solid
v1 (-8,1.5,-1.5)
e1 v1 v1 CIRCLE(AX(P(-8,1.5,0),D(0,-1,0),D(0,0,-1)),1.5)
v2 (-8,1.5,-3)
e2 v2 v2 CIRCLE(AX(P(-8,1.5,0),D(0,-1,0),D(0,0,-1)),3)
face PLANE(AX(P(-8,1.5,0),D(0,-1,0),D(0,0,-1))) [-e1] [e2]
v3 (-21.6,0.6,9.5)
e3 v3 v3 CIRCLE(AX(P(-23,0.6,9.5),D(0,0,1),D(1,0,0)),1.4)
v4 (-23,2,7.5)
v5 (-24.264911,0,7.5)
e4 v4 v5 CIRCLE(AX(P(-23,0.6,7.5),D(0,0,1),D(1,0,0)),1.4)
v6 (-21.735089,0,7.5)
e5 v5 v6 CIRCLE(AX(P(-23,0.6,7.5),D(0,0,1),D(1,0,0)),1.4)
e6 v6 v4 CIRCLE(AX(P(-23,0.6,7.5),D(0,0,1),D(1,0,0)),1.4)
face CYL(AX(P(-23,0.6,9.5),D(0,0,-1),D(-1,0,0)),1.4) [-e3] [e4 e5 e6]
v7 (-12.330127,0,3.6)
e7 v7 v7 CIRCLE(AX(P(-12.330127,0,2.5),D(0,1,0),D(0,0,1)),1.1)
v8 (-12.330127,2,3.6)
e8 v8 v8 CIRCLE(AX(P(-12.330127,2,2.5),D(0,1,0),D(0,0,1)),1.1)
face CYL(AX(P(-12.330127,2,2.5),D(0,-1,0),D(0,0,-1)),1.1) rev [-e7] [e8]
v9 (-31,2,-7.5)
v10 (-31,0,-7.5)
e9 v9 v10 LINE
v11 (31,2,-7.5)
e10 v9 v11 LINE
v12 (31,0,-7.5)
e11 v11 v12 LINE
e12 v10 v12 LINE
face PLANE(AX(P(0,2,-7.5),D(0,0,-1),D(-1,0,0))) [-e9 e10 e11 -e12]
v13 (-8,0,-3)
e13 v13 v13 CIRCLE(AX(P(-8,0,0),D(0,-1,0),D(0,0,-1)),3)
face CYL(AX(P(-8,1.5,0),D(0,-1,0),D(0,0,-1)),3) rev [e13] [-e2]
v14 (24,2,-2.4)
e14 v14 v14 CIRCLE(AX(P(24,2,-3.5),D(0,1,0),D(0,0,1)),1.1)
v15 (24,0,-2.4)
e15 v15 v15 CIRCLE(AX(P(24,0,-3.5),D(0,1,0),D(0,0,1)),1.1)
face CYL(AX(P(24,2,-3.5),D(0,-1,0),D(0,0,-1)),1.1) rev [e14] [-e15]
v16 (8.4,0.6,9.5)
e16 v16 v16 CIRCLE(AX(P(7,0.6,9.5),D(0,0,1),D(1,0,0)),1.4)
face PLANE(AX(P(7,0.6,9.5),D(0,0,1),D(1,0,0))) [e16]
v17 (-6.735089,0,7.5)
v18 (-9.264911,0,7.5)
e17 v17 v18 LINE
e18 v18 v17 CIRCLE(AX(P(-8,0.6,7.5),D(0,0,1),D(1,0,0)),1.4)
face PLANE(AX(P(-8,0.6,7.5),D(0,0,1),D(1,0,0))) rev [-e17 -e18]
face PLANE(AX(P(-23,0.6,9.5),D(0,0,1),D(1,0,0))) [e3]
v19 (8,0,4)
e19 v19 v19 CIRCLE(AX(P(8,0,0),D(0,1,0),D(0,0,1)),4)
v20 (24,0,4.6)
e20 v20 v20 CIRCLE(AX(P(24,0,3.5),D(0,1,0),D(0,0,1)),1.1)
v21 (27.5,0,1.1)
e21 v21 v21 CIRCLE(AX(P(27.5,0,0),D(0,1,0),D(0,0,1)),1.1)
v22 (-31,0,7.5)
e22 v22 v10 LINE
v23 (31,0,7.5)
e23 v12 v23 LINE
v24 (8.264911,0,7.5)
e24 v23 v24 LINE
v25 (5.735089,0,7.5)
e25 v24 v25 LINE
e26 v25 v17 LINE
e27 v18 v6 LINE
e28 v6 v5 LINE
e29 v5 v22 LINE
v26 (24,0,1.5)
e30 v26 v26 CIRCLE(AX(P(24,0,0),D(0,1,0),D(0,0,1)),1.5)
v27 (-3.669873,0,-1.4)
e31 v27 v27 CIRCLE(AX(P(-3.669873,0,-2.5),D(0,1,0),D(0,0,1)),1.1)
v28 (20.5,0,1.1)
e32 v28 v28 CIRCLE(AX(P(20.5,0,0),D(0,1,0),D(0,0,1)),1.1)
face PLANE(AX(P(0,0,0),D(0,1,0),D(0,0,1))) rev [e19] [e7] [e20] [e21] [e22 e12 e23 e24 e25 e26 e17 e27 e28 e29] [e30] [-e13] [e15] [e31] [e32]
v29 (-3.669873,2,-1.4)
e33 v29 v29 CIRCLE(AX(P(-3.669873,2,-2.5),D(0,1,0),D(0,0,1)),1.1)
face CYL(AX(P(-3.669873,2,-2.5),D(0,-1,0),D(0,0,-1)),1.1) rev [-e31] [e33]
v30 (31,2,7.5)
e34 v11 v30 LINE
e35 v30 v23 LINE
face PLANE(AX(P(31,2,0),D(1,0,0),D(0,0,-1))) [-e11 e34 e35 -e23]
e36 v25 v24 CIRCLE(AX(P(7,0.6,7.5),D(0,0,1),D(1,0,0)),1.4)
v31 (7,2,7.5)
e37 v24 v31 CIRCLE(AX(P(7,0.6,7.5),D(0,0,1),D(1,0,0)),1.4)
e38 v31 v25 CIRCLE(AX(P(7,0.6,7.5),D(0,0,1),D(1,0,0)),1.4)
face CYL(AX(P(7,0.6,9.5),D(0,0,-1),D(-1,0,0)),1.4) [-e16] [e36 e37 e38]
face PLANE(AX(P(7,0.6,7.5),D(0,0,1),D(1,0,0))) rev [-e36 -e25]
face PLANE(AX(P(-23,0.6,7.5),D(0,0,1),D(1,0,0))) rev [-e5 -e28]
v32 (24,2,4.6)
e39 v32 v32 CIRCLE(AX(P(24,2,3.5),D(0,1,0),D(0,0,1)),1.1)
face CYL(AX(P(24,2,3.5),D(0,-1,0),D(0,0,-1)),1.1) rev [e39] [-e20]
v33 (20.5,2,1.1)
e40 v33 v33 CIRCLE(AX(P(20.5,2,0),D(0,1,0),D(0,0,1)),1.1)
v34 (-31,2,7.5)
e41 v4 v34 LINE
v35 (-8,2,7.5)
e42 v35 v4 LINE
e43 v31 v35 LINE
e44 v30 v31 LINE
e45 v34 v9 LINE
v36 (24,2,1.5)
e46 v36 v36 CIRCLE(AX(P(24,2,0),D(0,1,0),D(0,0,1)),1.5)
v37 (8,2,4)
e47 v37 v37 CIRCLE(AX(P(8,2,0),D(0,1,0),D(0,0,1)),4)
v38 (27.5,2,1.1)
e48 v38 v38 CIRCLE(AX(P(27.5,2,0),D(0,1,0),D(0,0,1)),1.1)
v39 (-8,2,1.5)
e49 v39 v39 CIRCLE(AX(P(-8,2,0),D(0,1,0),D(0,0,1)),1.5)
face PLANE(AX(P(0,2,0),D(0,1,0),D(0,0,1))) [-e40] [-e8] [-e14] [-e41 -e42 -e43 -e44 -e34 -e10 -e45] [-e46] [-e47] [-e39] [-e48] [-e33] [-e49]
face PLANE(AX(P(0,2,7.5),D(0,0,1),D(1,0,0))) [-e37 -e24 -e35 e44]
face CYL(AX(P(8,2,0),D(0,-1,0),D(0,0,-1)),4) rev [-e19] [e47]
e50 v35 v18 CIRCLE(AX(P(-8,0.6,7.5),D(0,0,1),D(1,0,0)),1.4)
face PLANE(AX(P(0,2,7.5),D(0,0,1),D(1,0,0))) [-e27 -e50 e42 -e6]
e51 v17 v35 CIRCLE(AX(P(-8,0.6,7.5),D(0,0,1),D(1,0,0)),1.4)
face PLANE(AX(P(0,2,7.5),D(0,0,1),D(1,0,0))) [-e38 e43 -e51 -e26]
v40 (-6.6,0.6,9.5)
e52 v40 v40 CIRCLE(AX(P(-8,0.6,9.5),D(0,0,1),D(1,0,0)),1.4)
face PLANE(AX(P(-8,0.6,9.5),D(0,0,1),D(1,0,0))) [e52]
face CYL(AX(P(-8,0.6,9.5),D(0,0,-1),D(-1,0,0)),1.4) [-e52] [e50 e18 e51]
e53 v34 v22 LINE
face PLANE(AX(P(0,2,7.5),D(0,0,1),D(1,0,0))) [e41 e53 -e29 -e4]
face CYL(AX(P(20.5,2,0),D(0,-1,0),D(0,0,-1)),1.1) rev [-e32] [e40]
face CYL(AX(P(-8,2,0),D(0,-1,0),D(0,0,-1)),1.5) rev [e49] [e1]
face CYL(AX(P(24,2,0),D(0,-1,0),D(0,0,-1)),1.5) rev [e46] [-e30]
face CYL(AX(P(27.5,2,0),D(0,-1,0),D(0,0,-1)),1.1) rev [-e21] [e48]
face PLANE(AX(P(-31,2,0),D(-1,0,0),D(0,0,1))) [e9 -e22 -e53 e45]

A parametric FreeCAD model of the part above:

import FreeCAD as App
import Part
import Sketcher

V = App.Vector

doc = App.newDocument("Part")
body = doc.addObject("PartDesign::Body", "Body")

# Sketch on XZ plane
sketch1 = body.newObject("Sketcher::SketchObject", "Sketch")
sketch1.AttachmentSupport = (doc.getObject("XZ_Plane"), [""])
sketch1.MapMode = "FlatFace"
sketch1.addGeometry([
    Part.LineSegment(V(-31, -7.5, 0), V(-31, 7.5, 0)),  # 0
    Part.LineSegment(V(-31, 7.5, 0), V(31, 7.5, 0)),  # 1
    Part.LineSegment(V(31, 7.5, 0), V(31, -7.5, 0)),  # 2
    Part.LineSegment(V(31, -7.5, 0), V(-31, -7.5, 0)),  # 3
    Part.Circle(V(-12.3, 2.5, 0), V(0, 0, 1), 1.1),  # 4
    Part.Circle(V(24, 3.5, 0), V(0, 0, 1), 1.1),  # 5
    Part.Circle(V(-8, 0, 0), V(0, 0, 1), 1.5),  # 6
    Part.Circle(V(-3.7, -2.5, 0), V(0, 0, 1), 1.1),  # 7
    Part.Circle(V(8, 0, 0), V(0, 0, 1), 4),  # 8
    Part.Circle(V(20.5, 0, 0), V(0, 0, 1), 1.1),  # 9
    Part.Circle(V(24, 0, 0), V(0, 0, 1), 1.5),  # 10
    Part.Circle(V(27.5, 0, 0), V(0, 0, 1), 1.1),  # 11
    Part.Circle(V(24, -3.5, 0), V(0, 0, 1), 1.1),  # 12
], False)
sketch1.addConstraint([
    Sketcher.Constraint("Coincident", 0, 2, 1, 1),
    Sketcher.Constraint("Coincident", 1, 2, 2, 1),
    Sketcher.Constraint("Coincident", 2, 2, 3, 1),
    Sketcher.Constraint("Coincident", 3, 2, 0, 1),
    Sketcher.Constraint("Vertical", 0),
    Sketcher.Constraint("Horizontal", 1),
    Sketcher.Constraint("Vertical", 2),
    Sketcher.Constraint("Horizontal", 3),
    Sketcher.Constraint("Equal", 4, 5),
    Sketcher.Constraint("Equal", 5, 7),
    Sketcher.Constraint("Equal", 7, 9),
    Sketcher.Constraint("Equal", 6, 10),
    Sketcher.Constraint("Equal", 9, 11),
    Sketcher.Constraint("Equal", 11, 12),
    Sketcher.Constraint("Symmetric", 6, 3, 8, 3, -1, 1),
    Sketcher.Constraint("Symmetric", 0, 2, 2, 2, -1, 1),
    Sketcher.Constraint("Symmetric", 5, 3, 12, 3, -1),
    Sketcher.Constraint("PointOnObject", 6, 3, -1),
    Sketcher.Constraint("PointOnObject", 9, 3, -1),
    Sketcher.Constraint("PointOnObject", 10, 3, -1),
    Sketcher.Constraint("PointOnObject", 11, 3, -1),
    Sketcher.Constraint("Vertical", 5, 3, 10, 3),
    Sketcher.Constraint("Diameter", 6, 3.0),
    Sketcher.Constraint("Diameter", 8, 8.0),
    Sketcher.Constraint("Diameter", 4, 2.2),
    Sketcher.Constraint("DistanceX", 1, 1, 1, 2, 62.0),
    Sketcher.Constraint("DistanceY", 0, 1, 0, 2, 15.0),
    Sketcher.Constraint("DistanceX", -1, 1, 5, 3, 24.0),
    Sketcher.Constraint("DistanceX", 6, 3, -1, 1, 8.0),
    Sketcher.Constraint("DistanceY", 4, 3, 5, 3, 1.0),
    Sketcher.Constraint("DistanceY", 7, 3, 4, 3, 5.0),
    Sketcher.Constraint("DistanceX", 9, 3, 11, 3, 7.0),
    Sketcher.Constraint("DistanceY", 12, 3, 5, 3, 7.0),
    Sketcher.Constraint("DistanceX", -1, 1, 9, 3, 20.5),
    Sketcher.Constraint("DistanceX", 4, 3, -1, 1, 12.330127),
    Sketcher.Constraint("DistanceX", 7, 3, -1, 1, 3.669873),
])
pad1 = body.newObject("PartDesign::Pad", "Pad")
pad1.Profile = sketch1
pad1.Length = 2
pad1.Reversed = True

# Sketch on XY plane
sketch2 = body.newObject("Sketcher::SketchObject", "Sketch001")
sketch2.AttachmentSupport = (doc.getObject("XY_Plane"), [""])
sketch2.MapMode = "FlatFace"
sketch2.AttachmentOffset = App.Placement(V(0, 0, 7.5), App.Rotation())
sketch2.addGeometry([
    Part.Circle(V(-23, 0.6, 0), V(0, 0, 1), 1.4),
    Part.Circle(V(-8, 0.6, 0), V(0, 0, 1), 1.4),
    Part.Circle(V(7, 0.6, 0), V(0, 0, 1), 1.4),
], False)
sketch2.addConstraint([
    Sketcher.Constraint("Equal", 0, 1),
    Sketcher.Constraint("Equal", 1, 2),
    Sketcher.Constraint("Horizontal", 0, 3, 1, 3),
    Sketcher.Constraint("Horizontal", 1, 3, 2, 3),
    Sketcher.Constraint("Diameter", 0, 2.8),
    Sketcher.Constraint("DistanceX", 0, 3, -1, 1, 23.0),
    Sketcher.Constraint("DistanceX", 1, 3, -1, 1, 8.0),
    Sketcher.Constraint("DistanceX", -1, 1, 2, 3, 7.0),
    Sketcher.Constraint("DistanceY", -1, 1, 0, 3, 0.6),
])
pad2 = body.newObject("PartDesign::Pad", "Pad001")
pad2.Profile = sketch2
pad2.Length = 2

# Sketch on XZ plane
sketch3 = body.newObject("Sketcher::SketchObject", "Sketch002")
sketch3.AttachmentSupport = (doc.getObject("XZ_Plane"), [""])
sketch3.MapMode = "FlatFace"
sketch3.addGeometry(Part.Circle(V(-8, 0, 0), V(0, 0, 1), 3), False)
sketch3.addConstraint([
    Sketcher.Constraint("PointOnObject", 0, 3, -1),
    Sketcher.Constraint("Diameter", 0, 6.0),
    Sketcher.Constraint("DistanceX", 0, 3, -1, 1, 8.0),
])
pocket1 = body.newObject("PartDesign::Pocket", "Pocket")
pocket1.Profile = sketch3
pocket1.Length = 1.5

doc.recompute()
